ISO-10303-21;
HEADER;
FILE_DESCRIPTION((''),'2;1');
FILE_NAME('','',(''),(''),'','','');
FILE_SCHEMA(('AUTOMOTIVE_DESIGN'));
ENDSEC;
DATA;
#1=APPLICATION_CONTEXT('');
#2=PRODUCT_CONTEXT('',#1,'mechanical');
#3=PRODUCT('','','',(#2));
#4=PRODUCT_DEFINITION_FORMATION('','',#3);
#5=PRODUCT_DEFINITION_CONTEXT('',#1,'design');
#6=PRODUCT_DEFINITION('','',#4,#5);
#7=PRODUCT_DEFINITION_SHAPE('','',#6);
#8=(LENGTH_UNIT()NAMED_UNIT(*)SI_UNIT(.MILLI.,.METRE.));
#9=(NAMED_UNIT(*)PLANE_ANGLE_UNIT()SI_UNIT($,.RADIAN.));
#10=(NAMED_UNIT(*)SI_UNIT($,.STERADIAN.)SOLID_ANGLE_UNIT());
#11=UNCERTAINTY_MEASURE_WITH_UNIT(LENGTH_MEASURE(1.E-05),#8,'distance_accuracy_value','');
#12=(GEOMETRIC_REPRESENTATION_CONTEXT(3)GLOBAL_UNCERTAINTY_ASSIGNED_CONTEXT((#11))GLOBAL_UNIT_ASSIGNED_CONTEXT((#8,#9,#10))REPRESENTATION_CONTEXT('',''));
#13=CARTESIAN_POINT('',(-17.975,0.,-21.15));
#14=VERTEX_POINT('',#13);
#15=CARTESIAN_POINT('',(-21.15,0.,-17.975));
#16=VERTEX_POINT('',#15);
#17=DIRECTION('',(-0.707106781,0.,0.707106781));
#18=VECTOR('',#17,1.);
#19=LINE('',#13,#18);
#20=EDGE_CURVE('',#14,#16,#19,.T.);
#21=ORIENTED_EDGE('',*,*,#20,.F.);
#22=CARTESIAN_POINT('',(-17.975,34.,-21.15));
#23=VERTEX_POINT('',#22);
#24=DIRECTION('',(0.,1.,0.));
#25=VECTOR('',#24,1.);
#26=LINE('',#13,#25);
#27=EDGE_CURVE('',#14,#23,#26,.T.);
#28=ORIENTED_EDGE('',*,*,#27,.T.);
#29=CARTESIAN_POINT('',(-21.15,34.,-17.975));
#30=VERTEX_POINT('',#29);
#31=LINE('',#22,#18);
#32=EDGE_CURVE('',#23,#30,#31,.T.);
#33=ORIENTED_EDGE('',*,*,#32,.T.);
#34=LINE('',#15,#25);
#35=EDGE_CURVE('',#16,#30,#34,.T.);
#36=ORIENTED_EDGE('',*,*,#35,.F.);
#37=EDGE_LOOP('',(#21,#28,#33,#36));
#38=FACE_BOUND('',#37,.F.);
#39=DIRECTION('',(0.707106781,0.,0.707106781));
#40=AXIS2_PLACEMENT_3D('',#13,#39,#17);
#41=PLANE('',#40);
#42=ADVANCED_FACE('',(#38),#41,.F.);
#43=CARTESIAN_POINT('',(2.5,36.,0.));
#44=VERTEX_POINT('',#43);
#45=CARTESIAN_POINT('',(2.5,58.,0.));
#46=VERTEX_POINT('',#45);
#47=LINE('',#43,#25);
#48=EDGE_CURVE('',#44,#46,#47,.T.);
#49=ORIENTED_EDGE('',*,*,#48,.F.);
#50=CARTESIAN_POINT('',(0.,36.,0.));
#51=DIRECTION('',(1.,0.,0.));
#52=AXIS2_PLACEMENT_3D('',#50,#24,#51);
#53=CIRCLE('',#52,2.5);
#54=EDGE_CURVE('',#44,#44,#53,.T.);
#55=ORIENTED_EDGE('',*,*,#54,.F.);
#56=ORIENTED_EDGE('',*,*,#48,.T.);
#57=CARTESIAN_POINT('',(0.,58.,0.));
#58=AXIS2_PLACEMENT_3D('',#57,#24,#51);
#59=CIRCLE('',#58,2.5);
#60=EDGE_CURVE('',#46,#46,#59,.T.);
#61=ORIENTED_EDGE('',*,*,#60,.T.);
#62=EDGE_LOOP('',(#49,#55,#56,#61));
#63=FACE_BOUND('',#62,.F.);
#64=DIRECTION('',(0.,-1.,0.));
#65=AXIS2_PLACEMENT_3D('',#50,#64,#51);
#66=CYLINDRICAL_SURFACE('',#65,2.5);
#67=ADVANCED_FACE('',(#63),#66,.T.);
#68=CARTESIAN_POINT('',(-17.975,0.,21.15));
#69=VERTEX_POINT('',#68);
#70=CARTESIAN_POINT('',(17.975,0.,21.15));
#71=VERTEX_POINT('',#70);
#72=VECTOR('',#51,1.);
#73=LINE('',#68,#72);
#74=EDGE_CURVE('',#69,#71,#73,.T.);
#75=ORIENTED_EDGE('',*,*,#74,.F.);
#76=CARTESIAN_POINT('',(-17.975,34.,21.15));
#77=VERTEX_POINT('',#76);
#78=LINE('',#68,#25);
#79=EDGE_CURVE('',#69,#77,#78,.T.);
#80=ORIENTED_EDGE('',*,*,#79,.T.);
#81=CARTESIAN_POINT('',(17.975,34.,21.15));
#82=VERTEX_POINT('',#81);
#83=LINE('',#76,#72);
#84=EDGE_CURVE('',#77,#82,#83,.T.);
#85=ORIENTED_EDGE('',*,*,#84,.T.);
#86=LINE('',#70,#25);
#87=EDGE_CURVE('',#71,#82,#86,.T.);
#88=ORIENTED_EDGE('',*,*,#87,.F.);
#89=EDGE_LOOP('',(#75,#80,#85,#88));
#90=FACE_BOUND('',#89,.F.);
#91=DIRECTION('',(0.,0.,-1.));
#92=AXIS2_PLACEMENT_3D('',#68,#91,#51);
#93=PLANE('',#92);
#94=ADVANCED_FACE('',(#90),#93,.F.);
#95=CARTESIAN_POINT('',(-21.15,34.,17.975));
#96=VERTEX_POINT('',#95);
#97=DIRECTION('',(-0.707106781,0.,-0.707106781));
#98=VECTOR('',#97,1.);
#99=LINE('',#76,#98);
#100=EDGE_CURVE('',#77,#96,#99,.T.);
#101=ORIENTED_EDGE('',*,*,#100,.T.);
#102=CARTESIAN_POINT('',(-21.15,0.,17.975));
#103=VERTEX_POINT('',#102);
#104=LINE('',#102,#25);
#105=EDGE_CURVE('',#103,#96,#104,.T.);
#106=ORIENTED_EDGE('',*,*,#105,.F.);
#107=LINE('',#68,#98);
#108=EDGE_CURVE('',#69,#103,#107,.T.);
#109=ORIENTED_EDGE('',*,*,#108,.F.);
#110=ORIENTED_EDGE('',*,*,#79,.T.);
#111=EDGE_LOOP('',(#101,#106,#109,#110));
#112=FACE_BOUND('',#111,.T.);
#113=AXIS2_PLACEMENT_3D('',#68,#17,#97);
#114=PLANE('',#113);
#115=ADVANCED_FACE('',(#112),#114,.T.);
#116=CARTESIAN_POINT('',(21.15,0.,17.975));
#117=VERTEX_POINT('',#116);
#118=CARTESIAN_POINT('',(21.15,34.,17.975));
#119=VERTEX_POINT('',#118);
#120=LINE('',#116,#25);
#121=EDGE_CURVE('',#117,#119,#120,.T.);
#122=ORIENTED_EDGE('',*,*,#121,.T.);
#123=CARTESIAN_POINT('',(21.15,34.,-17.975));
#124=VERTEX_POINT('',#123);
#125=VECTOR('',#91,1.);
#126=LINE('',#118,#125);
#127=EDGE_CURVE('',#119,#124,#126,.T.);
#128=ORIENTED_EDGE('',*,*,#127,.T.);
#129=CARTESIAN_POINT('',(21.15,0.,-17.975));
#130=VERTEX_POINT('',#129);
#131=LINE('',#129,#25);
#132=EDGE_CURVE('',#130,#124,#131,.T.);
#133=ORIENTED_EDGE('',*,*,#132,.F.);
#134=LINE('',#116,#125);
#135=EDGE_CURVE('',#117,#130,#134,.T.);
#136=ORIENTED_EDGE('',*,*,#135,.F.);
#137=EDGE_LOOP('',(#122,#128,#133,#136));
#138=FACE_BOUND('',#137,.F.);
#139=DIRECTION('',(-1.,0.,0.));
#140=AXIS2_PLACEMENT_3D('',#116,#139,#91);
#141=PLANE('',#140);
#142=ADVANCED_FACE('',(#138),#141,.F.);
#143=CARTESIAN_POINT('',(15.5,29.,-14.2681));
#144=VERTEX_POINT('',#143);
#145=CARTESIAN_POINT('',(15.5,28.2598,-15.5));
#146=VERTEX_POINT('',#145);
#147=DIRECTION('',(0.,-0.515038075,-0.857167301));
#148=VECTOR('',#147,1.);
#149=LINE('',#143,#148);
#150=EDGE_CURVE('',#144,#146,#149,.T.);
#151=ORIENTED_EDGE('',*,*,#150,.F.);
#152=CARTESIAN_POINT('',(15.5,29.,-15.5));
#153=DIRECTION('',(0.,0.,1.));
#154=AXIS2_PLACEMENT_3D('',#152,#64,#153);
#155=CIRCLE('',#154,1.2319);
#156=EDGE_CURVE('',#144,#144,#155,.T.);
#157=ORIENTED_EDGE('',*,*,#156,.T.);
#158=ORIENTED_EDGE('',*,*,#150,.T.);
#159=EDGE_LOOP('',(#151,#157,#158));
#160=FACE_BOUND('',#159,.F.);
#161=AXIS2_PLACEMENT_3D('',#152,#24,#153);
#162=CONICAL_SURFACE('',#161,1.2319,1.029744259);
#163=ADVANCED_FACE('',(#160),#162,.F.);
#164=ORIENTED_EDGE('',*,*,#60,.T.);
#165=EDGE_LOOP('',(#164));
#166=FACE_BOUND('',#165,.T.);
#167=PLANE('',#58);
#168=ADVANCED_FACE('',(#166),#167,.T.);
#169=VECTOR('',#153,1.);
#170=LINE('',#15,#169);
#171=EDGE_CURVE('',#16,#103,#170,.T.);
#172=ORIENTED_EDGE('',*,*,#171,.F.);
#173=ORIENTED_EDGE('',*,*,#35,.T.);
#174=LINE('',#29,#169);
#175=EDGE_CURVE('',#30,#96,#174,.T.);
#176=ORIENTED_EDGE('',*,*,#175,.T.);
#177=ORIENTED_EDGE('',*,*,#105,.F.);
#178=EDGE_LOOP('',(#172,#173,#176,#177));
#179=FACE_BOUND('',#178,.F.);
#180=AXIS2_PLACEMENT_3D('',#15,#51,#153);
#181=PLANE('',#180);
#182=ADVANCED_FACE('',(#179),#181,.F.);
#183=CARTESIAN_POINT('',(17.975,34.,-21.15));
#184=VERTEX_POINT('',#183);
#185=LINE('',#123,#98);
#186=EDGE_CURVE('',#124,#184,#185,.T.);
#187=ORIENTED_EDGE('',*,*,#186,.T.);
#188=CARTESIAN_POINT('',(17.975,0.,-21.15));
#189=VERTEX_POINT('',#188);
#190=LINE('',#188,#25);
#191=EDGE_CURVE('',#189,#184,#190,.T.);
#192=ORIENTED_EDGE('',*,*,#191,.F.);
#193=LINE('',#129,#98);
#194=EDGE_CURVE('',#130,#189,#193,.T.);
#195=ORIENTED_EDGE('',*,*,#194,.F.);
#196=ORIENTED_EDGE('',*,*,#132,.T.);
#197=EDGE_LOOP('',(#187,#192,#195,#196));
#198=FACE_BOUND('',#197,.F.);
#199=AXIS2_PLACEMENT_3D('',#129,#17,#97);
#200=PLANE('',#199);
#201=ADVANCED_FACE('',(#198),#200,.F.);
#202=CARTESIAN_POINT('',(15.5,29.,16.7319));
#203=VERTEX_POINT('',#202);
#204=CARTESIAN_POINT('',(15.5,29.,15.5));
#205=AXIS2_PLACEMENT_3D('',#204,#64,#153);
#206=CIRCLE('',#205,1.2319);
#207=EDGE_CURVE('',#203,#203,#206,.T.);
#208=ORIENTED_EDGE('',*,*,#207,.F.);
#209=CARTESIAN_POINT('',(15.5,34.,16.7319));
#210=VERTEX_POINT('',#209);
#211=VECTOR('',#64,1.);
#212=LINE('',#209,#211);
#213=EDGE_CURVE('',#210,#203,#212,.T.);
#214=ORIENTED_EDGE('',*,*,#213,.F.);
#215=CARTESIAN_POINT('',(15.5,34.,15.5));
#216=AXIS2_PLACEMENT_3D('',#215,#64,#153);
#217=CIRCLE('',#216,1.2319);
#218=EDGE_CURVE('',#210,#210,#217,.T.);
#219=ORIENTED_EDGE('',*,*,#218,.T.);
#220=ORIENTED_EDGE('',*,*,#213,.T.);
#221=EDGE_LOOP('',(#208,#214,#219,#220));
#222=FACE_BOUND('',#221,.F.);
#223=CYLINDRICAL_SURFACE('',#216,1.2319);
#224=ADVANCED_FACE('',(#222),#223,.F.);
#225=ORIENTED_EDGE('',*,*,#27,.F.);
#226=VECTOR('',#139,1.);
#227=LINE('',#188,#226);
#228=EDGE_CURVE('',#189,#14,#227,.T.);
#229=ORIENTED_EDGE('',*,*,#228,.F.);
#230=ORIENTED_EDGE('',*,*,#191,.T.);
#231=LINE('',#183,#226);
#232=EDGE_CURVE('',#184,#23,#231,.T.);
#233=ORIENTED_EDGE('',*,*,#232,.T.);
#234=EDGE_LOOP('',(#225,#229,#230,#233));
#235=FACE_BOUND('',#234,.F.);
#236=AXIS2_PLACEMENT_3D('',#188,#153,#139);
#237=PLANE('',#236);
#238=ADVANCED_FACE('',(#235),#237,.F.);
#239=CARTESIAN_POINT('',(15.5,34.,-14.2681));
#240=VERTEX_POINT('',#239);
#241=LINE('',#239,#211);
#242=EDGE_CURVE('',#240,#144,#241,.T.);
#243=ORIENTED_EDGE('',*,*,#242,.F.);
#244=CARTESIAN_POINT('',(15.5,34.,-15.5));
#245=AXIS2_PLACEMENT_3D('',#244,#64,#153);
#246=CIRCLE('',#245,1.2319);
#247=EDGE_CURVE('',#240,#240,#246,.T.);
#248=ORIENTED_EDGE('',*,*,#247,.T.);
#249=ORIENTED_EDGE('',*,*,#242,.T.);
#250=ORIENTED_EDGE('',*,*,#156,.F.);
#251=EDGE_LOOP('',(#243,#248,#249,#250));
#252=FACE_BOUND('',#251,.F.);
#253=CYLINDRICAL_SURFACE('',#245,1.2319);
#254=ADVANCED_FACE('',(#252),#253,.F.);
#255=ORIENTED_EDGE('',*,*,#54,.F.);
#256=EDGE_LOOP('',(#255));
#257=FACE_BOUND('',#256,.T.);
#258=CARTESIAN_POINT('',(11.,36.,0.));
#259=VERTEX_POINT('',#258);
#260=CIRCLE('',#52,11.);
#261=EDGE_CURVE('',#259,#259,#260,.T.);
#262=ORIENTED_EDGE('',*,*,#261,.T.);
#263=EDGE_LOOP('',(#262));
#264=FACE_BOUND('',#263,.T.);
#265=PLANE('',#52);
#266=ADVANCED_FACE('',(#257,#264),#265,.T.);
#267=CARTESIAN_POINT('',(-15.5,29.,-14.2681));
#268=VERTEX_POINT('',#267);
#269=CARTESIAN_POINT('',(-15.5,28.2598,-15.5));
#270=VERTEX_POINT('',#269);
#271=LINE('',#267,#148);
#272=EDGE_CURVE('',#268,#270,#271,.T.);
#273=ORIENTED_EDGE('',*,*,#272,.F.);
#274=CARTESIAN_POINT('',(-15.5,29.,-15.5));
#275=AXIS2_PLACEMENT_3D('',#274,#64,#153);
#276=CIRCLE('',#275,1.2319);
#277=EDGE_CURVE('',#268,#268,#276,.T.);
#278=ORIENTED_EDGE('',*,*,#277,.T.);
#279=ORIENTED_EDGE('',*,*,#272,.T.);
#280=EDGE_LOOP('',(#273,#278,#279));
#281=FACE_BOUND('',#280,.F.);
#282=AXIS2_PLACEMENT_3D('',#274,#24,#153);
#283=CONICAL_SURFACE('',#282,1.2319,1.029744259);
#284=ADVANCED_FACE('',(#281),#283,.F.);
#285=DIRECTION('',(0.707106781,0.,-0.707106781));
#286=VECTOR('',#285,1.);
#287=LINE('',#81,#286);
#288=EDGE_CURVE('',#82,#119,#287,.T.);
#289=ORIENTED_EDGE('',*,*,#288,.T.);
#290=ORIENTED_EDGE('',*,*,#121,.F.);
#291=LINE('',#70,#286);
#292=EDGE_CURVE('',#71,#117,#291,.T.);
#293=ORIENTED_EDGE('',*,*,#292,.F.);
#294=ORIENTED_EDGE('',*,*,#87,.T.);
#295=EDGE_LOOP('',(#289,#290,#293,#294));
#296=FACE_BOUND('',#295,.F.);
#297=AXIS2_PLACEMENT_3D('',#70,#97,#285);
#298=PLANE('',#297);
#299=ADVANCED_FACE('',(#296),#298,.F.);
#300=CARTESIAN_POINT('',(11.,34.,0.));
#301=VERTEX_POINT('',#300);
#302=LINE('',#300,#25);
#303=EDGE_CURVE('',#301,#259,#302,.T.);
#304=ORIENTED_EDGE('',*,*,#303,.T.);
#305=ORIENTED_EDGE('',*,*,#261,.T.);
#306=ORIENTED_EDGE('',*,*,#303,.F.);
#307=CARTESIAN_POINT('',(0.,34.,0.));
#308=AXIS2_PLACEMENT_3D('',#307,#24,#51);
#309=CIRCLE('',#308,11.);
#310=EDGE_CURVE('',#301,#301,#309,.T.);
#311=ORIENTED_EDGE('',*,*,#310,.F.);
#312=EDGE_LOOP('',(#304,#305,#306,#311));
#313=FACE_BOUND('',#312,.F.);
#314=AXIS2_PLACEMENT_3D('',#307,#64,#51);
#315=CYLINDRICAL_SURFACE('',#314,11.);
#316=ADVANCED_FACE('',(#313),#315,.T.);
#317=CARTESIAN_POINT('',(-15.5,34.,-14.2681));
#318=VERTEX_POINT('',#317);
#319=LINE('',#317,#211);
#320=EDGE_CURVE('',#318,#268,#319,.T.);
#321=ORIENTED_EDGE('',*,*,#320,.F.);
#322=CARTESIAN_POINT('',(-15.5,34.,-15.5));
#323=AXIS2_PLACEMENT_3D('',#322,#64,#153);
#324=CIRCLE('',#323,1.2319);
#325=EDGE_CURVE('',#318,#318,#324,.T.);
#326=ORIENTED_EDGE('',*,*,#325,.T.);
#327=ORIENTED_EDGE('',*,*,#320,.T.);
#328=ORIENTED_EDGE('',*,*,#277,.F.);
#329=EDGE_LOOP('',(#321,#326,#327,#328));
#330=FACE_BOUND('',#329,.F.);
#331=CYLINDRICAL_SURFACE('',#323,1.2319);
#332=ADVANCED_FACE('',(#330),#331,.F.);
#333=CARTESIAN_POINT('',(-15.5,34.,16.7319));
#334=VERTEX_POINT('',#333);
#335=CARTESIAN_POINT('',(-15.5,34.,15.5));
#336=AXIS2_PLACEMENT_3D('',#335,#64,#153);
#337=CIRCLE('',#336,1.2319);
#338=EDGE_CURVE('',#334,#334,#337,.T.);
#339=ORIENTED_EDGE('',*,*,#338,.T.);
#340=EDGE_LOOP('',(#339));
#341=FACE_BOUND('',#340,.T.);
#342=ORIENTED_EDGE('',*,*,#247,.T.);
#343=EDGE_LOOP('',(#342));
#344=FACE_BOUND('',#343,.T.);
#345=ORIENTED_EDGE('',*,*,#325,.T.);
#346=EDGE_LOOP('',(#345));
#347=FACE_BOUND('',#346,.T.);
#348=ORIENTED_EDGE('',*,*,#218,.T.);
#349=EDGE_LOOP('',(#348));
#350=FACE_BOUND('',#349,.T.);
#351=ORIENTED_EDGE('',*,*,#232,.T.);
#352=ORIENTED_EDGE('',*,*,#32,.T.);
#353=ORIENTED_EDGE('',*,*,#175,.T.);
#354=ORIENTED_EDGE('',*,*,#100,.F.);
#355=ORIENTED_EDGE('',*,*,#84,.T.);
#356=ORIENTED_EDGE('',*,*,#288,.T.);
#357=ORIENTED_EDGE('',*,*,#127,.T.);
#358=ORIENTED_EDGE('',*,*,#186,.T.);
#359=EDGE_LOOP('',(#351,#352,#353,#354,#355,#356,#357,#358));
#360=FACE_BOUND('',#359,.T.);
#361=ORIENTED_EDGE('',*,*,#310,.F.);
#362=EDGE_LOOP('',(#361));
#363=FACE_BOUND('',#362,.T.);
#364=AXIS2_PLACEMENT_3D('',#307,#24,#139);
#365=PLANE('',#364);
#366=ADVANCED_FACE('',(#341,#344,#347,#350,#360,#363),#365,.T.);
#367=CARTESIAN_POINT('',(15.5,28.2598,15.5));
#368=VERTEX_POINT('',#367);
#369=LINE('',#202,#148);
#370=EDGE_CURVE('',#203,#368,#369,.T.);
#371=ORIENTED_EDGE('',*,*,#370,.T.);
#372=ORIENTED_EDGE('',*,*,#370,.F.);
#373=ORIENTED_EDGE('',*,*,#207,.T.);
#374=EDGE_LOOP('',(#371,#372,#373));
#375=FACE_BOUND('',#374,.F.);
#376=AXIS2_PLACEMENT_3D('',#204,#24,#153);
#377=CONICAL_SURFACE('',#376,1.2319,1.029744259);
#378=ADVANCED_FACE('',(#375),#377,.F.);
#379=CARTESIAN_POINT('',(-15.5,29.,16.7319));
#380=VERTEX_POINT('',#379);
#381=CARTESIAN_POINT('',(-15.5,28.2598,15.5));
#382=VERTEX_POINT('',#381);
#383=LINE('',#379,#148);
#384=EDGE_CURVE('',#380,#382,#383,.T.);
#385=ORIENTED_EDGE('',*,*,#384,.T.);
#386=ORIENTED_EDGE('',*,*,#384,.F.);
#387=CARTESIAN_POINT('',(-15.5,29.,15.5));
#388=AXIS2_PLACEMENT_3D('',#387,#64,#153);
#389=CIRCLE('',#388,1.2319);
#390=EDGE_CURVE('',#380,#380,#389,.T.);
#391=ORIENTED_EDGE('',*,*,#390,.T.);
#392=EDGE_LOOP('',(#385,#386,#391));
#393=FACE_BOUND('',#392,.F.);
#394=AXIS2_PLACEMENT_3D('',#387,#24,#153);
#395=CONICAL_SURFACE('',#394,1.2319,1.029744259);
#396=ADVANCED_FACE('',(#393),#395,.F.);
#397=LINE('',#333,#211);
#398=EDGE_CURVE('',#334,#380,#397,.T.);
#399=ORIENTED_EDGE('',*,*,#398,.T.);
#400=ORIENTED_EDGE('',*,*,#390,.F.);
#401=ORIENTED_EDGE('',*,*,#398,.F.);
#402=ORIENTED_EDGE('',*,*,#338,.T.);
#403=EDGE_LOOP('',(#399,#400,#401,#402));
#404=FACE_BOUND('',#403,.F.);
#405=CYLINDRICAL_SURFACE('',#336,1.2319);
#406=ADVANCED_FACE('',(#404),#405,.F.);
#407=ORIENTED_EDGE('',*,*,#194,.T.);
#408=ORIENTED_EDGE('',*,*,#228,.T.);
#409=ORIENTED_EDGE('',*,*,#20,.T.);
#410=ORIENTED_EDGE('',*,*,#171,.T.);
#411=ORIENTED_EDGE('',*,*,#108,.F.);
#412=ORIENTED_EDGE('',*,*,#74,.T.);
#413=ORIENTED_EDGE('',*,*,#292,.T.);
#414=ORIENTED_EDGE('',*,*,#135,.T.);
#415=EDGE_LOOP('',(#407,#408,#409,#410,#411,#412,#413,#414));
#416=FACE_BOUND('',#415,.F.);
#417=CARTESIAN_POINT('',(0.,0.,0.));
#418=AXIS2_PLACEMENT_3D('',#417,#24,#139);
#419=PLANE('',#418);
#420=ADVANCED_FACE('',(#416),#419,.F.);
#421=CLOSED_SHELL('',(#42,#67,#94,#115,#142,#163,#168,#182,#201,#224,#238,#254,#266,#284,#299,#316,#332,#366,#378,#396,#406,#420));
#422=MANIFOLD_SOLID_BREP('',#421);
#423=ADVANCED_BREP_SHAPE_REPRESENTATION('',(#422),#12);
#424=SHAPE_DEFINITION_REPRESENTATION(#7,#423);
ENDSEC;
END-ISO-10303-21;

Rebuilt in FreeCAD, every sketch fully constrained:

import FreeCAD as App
import Part
import Sketcher
from FreeCAD import Vector
Q = App.Units.Quantity

doc = App.newDocument("Part")
body = doc.addObject("PartDesign::Body", "Body")

# Sketch on XZ plane
sketch1 = doc.addObject("Sketcher::SketchObject", "Sketch")
body.addObject(sketch1)
sketch1.AttachmentSupport = (doc.XZ_Plane, [""])
sketch1.MapMode = "FlatFace"
sketch1.addGeometry([
    Part.LineSegment(Vector(21.1, -18, 0), Vector(18, -21.1, 0)),  # 0
    Part.LineSegment(Vector(18, -21.1, 0), Vector(-18, -21.1, 0)),  # 1
    Part.LineSegment(Vector(-18, -21.1, 0), Vector(-21.1, -18, 0)),  # 2
    Part.LineSegment(Vector(-21.1, -18, 0), Vector(-21.1, 18, 0)),  # 3
    Part.LineSegment(Vector(-21.1, 18, 0), Vector(-18, 21.1, 0)),  # 4
    Part.LineSegment(Vector(-18, 21.1, 0), Vector(18, 21.1, 0)),  # 5
    Part.LineSegment(Vector(18, 21.1, 0), Vector(21.1, 18, 0)),  # 6
    Part.LineSegment(Vector(21.1, 18, 0), Vector(21.1, -18, 0)),  # 7
], False)
sketch1.addConstraint([
    Sketcher.Constraint("Coincident", 0, 2, 1, 1),
    Sketcher.Constraint("Coincident", 1, 2, 2, 1),
    Sketcher.Constraint("Coincident", 2, 2, 3, 1),
    Sketcher.Constraint("Coincident", 3, 2, 4, 1),
    Sketcher.Constraint("Coincident", 4, 2, 5, 1),
    Sketcher.Constraint("Coincident", 5, 2, 6, 1),
    Sketcher.Constraint("Coincident", 6, 2, 7, 1),
    Sketcher.Constraint("Coincident", 7, 2, 0, 1),
    Sketcher.Constraint("Horizontal", 1),
    Sketcher.Constraint("Vertical", 3),
    Sketcher.Constraint("Horizontal", 5),
    Sketcher.Constraint("Vertical", 7),
    Sketcher.Constraint("Symmetric", 0, 2, 4, 2, -1, 1),
    Sketcher.Constraint("Symmetric", 2, 2, 6, 2, -1, 1),
    Sketcher.Constraint("Perpendicular", 0, 2),
    Sketcher.Constraint("Perpendicular", 2, 4),
    Sketcher.Constraint("Perpendicular", 4, 6),
    Sketcher.Constraint("Horizontal", 3, 2, 6, 2),
    Sketcher.Constraint("Vertical", 1, 2, 4, 2),
    Sketcher.Constraint("Equal", 5, 3),
    Sketcher.Constraint("DistanceY", 1, 2, 4, 2, Q("42.3 mm")),
    Sketcher.Constraint("DistanceX", 2, 2, 1, 2, Q("3.175 mm")),
])
pad1 = doc.addObject("PartDesign::Pad", "Pad")
body.addObject(pad1)
pad1.Profile = sketch1
pad1.Length = 34
pad1.Reversed = True

# Sketch on XZ plane
sketch2 = doc.addObject("Sketcher::SketchObject", "Sketch001")
body.addObject(sketch2)
sketch2.AttachmentSupport = (doc.XZ_Plane, [""])
sketch2.MapMode = "FlatFace"
sketch2.AttachmentOffset = App.Placement(Vector(0, 0, -34), App.Rotation())
sketch2.addGeometry(Part.Circle(Vector(0, 0, 0), Vector(0, 0, 1), 11), False)
sketch2.addConstraint([
    Sketcher.Constraint("Coincident", 0, 3, -1, 1),
    Sketcher.Constraint("Diameter", 0, Q("22 mm")),
])
pad2 = doc.addObject("PartDesign::Pad", "Pad001")
body.addObject(pad2)
pad2.Profile = sketch2
pad2.Length = 2
pad2.Reversed = True

# Sketch on XZ plane
sketch3 = doc.addObject("Sketcher::SketchObject", "Sketch002")
body.addObject(sketch3)
sketch3.AttachmentSupport = (doc.XZ_Plane, [""])
sketch3.MapMode = "FlatFace"
sketch3.AttachmentOffset = App.Placement(Vector(0, 0, -36), App.Rotation())
sketch3.addGeometry(Part.Circle(Vector(0, 0, 0), Vector(0, 0, 1), 2.5), False)
sketch3.addConstraint([
    Sketcher.Constraint("Coincident", 0, 3, -1, 1),
    Sketcher.Constraint("Diameter", 0, Q("5 mm")),
])
pad3 = doc.addObject("PartDesign::Pad", "Pad002")
body.addObject(pad3)
pad3.Profile = sketch3
pad3.Length = 22
pad3.Reversed = True

# Sketch on XZ plane
sketch4 = doc.addObject("Sketcher::SketchObject", "Sketch003")
body.addObject(sketch4)
sketch4.AttachmentSupport = (doc.XZ_Plane, [""])
sketch4.MapMode = "FlatFace"
sketch4.AttachmentOffset = App.Placement(Vector(0, 0, -34), App.Rotation())
sketch4.addGeometry([
    Part.Circle(Vector(15.5, -15.5, 0), Vector(0, 0, 1), 1.2),
    Part.Circle(Vector(15.5, 15.5, 0), Vector(0, 0, 1), 1.2),
    Part.Circle(Vector(-15.5, -15.5, 0), Vector(0, 0, 1), 1.2),
    Part.Circle(Vector(-15.5, 15.5, 0), Vector(0, 0, 1), 1.2),
], False)
sketch4.addConstraint([
    Sketcher.Constraint("Equal", 0, 1),
    Sketcher.Constraint("Equal", 1, 2),
    Sketcher.Constraint("Equal", 2, 3),
    Sketcher.Constraint("Symmetric", 1, 3, 2, 3, -1, 1),
    Sketcher.Constraint("Symmetric", 0, 3, 3, 3, -1, 1),
    Sketcher.Constraint("Symmetric", 0, 3, 2, 3, -2),
    Sketcher.Constraint("DistanceY", 0, 3, 1, 3, Q("31 mm")),
    Sketcher.Constraint("DistanceX", 2, 3, 0, 3, Q("31 mm")),
    Sketcher.Constraint("Diameter", 0, Q("2.4638 mm")),
])
doc.recompute()
hole = doc.addObject("PartDesign::Hole", "Hole")
body.addObject(hole)
hole.Profile = sketch4
hole.ThreadType = "None"
hole.Diameter = 2.4638
hole.DepthType = "Dimension"
hole.Depth = 5
hole.DrillPoint = "Angled"
hole.DrillPointAngle = 118
hole.Reversed = True

doc.recompute()
